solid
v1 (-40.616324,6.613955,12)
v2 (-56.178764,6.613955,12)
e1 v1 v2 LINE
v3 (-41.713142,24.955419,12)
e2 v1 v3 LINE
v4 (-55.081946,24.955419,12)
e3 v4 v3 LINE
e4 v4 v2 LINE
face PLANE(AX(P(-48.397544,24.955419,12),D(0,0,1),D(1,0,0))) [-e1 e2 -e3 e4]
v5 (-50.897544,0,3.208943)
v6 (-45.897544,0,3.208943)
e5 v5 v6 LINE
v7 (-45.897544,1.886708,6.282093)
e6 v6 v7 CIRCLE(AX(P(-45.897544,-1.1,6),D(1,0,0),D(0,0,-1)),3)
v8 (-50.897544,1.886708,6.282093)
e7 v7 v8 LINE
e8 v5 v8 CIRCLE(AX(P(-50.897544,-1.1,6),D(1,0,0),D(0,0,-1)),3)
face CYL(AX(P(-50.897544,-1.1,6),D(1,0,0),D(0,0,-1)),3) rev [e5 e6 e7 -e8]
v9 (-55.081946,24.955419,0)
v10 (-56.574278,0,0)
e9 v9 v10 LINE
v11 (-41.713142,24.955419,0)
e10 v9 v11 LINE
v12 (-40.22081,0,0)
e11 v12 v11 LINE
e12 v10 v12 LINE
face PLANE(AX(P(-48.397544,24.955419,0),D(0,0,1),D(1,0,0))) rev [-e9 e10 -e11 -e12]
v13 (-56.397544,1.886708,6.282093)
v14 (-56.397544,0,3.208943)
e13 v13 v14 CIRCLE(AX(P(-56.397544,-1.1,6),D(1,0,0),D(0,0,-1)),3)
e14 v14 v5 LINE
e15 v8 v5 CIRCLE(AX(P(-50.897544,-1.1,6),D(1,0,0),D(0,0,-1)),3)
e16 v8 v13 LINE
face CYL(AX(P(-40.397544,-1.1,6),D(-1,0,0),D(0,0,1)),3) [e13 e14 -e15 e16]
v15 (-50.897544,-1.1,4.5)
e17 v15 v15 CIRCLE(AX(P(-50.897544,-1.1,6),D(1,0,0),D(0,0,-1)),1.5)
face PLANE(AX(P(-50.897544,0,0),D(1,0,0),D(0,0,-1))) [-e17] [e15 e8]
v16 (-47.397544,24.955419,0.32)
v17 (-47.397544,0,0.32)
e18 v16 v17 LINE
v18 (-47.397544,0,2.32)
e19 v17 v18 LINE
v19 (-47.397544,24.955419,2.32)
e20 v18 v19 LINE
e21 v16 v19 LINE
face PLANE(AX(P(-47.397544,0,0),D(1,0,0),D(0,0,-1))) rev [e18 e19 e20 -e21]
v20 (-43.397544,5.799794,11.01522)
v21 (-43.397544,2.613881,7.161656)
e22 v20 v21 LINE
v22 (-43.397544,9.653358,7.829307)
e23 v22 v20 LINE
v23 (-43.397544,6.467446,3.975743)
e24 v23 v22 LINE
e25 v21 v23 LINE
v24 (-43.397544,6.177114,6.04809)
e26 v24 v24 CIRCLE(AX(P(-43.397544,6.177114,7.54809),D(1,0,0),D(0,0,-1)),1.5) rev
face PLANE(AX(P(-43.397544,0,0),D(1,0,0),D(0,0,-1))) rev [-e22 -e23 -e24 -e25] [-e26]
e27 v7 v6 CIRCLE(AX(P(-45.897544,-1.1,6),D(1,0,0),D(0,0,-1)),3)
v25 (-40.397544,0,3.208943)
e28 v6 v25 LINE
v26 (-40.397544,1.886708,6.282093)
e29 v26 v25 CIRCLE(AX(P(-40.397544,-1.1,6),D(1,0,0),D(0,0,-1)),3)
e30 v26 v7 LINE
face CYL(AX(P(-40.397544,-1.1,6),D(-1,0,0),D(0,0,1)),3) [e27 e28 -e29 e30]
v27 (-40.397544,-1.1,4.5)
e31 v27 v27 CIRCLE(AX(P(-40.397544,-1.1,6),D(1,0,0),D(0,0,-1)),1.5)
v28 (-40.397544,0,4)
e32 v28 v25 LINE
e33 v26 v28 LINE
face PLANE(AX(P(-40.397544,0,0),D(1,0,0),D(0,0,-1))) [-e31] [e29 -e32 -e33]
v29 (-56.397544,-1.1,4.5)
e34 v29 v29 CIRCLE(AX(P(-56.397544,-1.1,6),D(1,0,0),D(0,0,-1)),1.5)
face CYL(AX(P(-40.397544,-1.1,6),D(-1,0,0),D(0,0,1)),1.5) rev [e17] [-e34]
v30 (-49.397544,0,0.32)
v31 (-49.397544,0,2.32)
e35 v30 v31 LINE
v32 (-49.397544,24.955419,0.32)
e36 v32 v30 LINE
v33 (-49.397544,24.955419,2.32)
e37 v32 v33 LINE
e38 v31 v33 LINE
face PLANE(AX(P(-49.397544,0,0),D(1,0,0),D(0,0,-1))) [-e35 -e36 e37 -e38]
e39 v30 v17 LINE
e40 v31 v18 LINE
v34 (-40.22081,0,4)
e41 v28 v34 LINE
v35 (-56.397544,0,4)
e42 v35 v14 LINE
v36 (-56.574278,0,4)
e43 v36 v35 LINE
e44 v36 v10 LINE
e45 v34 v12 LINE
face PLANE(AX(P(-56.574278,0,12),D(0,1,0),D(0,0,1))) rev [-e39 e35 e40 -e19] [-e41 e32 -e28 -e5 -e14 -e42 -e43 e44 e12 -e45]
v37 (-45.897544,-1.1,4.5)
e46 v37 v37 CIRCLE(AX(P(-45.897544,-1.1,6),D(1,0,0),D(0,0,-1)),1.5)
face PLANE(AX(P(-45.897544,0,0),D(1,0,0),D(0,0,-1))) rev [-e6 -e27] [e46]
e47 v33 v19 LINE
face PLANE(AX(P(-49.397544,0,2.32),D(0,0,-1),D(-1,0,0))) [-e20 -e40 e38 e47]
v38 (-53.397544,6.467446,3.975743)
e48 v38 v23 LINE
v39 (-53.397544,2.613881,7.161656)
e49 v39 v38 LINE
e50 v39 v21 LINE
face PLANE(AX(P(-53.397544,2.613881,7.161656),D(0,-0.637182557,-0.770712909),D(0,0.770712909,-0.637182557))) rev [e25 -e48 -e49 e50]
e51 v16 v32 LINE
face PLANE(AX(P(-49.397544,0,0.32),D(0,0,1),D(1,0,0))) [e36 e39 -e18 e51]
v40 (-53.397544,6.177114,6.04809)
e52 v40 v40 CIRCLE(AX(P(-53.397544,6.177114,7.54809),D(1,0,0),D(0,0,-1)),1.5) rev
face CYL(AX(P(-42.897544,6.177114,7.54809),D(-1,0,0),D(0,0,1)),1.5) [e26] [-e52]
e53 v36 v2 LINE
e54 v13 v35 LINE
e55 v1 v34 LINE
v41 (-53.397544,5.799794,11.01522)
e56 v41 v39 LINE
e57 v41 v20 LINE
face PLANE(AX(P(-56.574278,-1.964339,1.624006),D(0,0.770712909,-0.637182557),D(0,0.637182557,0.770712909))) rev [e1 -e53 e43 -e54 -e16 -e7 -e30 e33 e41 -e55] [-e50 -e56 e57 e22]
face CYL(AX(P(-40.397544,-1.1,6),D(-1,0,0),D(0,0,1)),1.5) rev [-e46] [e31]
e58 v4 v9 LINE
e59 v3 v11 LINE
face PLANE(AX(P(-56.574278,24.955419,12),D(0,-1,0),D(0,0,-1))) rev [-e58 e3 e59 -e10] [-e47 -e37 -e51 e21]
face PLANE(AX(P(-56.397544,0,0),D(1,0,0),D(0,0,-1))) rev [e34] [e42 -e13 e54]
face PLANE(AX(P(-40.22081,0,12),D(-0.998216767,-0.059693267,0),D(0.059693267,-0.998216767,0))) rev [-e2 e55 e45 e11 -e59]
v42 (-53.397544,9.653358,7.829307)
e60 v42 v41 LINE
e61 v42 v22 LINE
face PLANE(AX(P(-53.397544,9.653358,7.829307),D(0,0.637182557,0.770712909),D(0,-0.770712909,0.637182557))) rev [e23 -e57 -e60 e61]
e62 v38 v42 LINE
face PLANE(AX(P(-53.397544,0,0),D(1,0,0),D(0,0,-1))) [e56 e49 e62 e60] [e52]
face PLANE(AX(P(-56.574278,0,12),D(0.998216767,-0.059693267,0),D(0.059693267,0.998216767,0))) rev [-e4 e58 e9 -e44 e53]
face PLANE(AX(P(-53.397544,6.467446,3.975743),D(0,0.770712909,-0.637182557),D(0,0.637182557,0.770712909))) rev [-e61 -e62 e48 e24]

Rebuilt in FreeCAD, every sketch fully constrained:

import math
import FreeCAD as App
import Part
import Sketcher
from FreeCAD import Vector
Q = App.Units.Quantity

doc = App.newDocument("Part")
body = doc.addObject("PartDesign::Body", "Body")

# Sketch on XY plane
sketch1 = doc.addObject("Sketcher::SketchObject", "Sketch")
body.addObject(sketch1)
sketch1.AttachmentSupport = (doc.XY_Plane, [""])
sketch1.MapMode = "FlatFace"
sketch1.addGeometry(Part.LineSegment(Vector(-57, 0, 0), Vector(-40, 0, 0)), False)
sketch1.addGeometry(Part.LineSegment(Vector(-40, 0, 0), Vector(-42, 25, 0)), False)
sketch1.addGeometry(Part.ArcOfCircle(Part.Circle(Vector(-48, 25, 0), Vector(0, 0, 1), 7), math.radians(0), math.radians(180)), False)
sketch1.addGeometry(Part.LineSegment(Vector(-55, 25, 0), Vector(-57, 0, 0)), False)
sketch1.addConstraint(Sketcher.Constraint("Coincident", 0, 2, 1, 1))
sketch1.addConstraint(Sketcher.Constraint("Coincident", 1, 2, 2, 1))
sketch1.addConstraint(Sketcher.Constraint("Coincident", 2, 2, 3, 1))
sketch1.addConstraint(Sketcher.Constraint("Coincident", 3, 2, 0, 1))
sketch1.addConstraint(Sketcher.Constraint("Horizontal", 0))
sketch1.addConstraint(Sketcher.Constraint("PointOnObject", 0, 2, -1))
sketch1.addConstraint(Sketcher.Constraint("Horizontal", 2, 3, 1, 2))
sketch1.addConstraint(Sketcher.Constraint("Horizontal", 1, 2, 2, 2))
sketch1.addConstraint(Sketcher.Constraint("Equal", 1, 3))
sketch1.addConstraint(Sketcher.Constraint("Distance", 1, Q("25 mm")))
sketch1.addConstraint(Sketcher.Constraint("Radius", 2, Q("6.684402 mm")))
sketch1.addConstraint(Sketcher.Constraint("DistanceX", 0, 1, 0, 2, Q("16.353468 mm")))
sketch1.addConstraint(Sketcher.Constraint("DistanceX", 0, 2, -1, 1, Q("40.22081 mm")))
pad1 = doc.addObject("PartDesign::Pad", "Pad")
body.addObject(pad1)
pad1.Profile = sketch1
pad1.Length = 12

# Sketch on YZ plane
sketch2 = doc.addObject("Sketcher::SketchObject", "Sketch001")
body.addObject(sketch2)
sketch2.AttachmentSupport = (doc.YZ_Plane, [""])
sketch2.MapMode = "FlatFace"
sketch2.AttachmentOffset = App.Placement(Vector(0, 0, -48.397544), App.Rotation())
sketch2.addGeometry(Part.LineSegment(Vector(7, 12, 0), Vector(0, 12, 0)), False)
sketch2.addGeometry(Part.LineSegment(Vector(0, 12, 0), Vector(0, 4, 0)), False)
sketch2.addGeometry(Part.LineSegment(Vector(0, 4, 0), Vector(7, 12, 0)), False)
sketch2.addConstraint(Sketcher.Constraint("Coincident", 0, 2, 1, 1))
sketch2.addConstraint(Sketcher.Constraint("Coincident", 1, 2, 2, 1))
sketch2.addConstraint(Sketcher.Constraint("Coincident", 2, 2, 0, 1))
sketch2.addConstraint(Sketcher.Constraint("Horizontal", 0))
sketch2.addConstraint(Sketcher.Constraint("Vertical", 1))
sketch2.addConstraint(Sketcher.Constraint("PointOnObject", 0, 2, -2))
sketch2.addConstraint(Sketcher.Constraint("DistanceY", 1, 2, 1, 1, Q("8 mm")))
sketch2.addConstraint(Sketcher.Constraint("DistanceY", -1, 1, 0, 2, Q("12 mm")))
sketch2.addConstraint(Sketcher.Constraint("Distance", 2, Q("10.38 mm")))
pocket1 = doc.addObject("PartDesign::Pocket", "Pocket")
body.addObject(pocket1)
pocket1.Profile = sketch2
pocket1.Type = "ThroughAll"
pocket1.Midplane = True

# Sketch on YZ plane
sketch3 = doc.addObject("Sketcher::SketchObject", "Sketch002")
body.addObject(sketch3)
sketch3.AttachmentSupport = (doc.YZ_Plane, [""])
sketch3.MapMode = "FlatFace"
sketch3.AttachmentOffset = App.Placement(Vector(0, 0, -48.397544), App.Rotation())
sketch3.addGeometry(Part.Circle(Vector(-1.1, 6, 0), Vector(0, 0, 1), 3), False)
sketch3.addGeometry(Part.Circle(Vector(-1.1, 6, 0), Vector(0, 0, 1), 1.5), False)
sketch3.addConstraint(Sketcher.Constraint("Coincident", 1, 3, 0, 3))
sketch3.addConstraint(Sketcher.Constraint("Diameter", 0, Q("6 mm")))
sketch3.addConstraint(Sketcher.Constraint("Diameter", 1, Q("3 mm")))
sketch3.addConstraint(Sketcher.Constraint("DistanceY", -1, 1, 0, 3, Q("6 mm")))
sketch3.addConstraint(Sketcher.Constraint("DistanceX", 0, 3, -1, 1, Q("1.1 mm")))
pad2 = doc.addObject("PartDesign::Pad", "Pad001")
body.addObject(pad2)
pad2.Profile = sketch3
pad2.Length = 16
pad2.Midplane = True

# Sketch on YZ plane
sketch4 = doc.addObject("Sketcher::SketchObject", "Sketch003")
body.addObject(sketch4)
sketch4.AttachmentSupport = (doc.YZ_Plane, [""])
sketch4.MapMode = "FlatFace"
sketch4.AttachmentOffset = App.Placement(Vector(0, 0, -48.397544), App.Rotation())
sketch4.addGeometry(Part.Circle(Vector(-1.1, 6, 0), Vector(0, 0, 1), 3), False)
sketch4.addGeometry(Part.Circle(Vector(-1.1, 6, 0), Vector(0, 0, 1), 1.5), False)
sketch4.addConstraint(Sketcher.Constraint("Coincident", 1, 3, 0, 3))
sketch4.addConstraint(Sketcher.Constraint("Diameter", 0, Q("6 mm")))
sketch4.addConstraint(Sketcher.Constraint("Diameter", 1, Q("3 mm")))
sketch4.addConstraint(Sketcher.Constraint("DistanceY", -1, 1, 0, 3, Q("6 mm")))
sketch4.addConstraint(Sketcher.Constraint("DistanceX", 0, 3, -1, 1, Q("1.1 mm")))
pocket2 = doc.addObject("PartDesign::Pocket", "Pocket001")
body.addObject(pocket2)
pocket2.Profile = sketch4
pocket2.Length = 5
pocket2.Midplane = True

# Sketch on YZ plane
sketch5 = doc.addObject("Sketcher::SketchObject", "Sketch004")
body.addObject(sketch5)
sketch5.AttachmentSupport = (doc.YZ_Plane, [""])
sketch5.MapMode = "FlatFace"
sketch5.AttachmentOffset = App.Placement(Vector(0, 0, -48.397544), App.Rotation())
sketch5.addGeometry(Part.LineSegment(Vector(5.8, 11, 0), Vector(2.6, 7.2, 0)), False)
sketch5.addGeometry(Part.LineSegment(Vector(2.6, 7.2, 0), Vector(6.5, 4, 0)), False)
sketch5.addGeometry(Part.LineSegment(Vector(6.5, 4, 0), Vector(9.7, 7.8, 0)), False)
sketch5.addGeometry(Part.LineSegment(Vector(9.7, 7.8, 0), Vector(5.8, 11, 0)), False)
sketch5.addConstraint(Sketcher.Constraint("Coincident", 0, 2, 1, 1))
sketch5.addConstraint(Sketcher.Constraint("Coincident", 1, 2, 2, 1))
sketch5.addConstraint(Sketcher.Constraint("Coincident", 2, 2, 3, 1))
sketch5.addConstraint(Sketcher.Constraint("Coincident", 3, 2, 0, 1))
sketch5.addConstraint(Sketcher.Constraint("Perpendicular", 0, 1))
sketch5.addConstraint(Sketcher.Constraint("Perpendicular", 1, 2))
sketch5.addConstraint(Sketcher.Constraint("Perpendicular", 2, 3))
sketch5.addConstraint(Sketcher.Constraint("Equal", 0, 1))
sketch5.addConstraint(Sketcher.Constraint("Distance", 0, Q("5 mm")))
sketch5.addConstraint(Sketcher.Constraint("DistanceX", -1, 1, 0, 2, Q("2.613881 mm")))
sketch5.addConstraint(Sketcher.Constraint("DistanceX", -1, 1, 2, 2, Q("9.653358 mm")))
sketch5.addConstraint(Sketcher.Constraint("DistanceY", -1, 1, 3, 2, Q("11.01522 mm")))
pocket3 = doc.addObject("PartDesign::Pocket", "Pocket002")
body.addObject(pocket3)
pocket3.Profile = sketch5
pocket3.Length = 10
pocket3.Midplane = True

# Sketch on YZ plane
sketch6 = doc.addObject("Sketcher::SketchObject", "Sketch005")
body.addObject(sketch6)
sketch6.AttachmentSupport = (doc.YZ_Plane, [""])
sketch6.MapMode = "FlatFace"
sketch6.AttachmentOffset = App.Placement(Vector(0, 0, -48.397544), App.Rotation())
sketch6.addGeometry(Part.Circle(Vector(6.2, 7.5, 0), Vector(0, 0, 1), 1.5), False)
sketch6.addConstraint(Sketcher.Constraint("Diameter", 0, Q("3 mm")))
sketch6.addConstraint(Sketcher.Constraint("DistanceY", -1, 1, 0, 3, Q("7.54809 mm")))
sketch6.addConstraint(Sketcher.Constraint("DistanceX", -1, 1, 0, 3, Q("6.177114 mm")))
pad3 = doc.addObject("PartDesign::Pad", "Pad002")
body.addObject(pad3)
pad3.Profile = sketch6
pad3.Length = 11
pad3.Midplane = True

# Sketch on YZ plane
sketch7 = doc.addObject("Sketcher::SketchObject", "Sketch006")
body.addObject(sketch7)
sketch7.AttachmentSupport = (doc.YZ_Plane, [""])
sketch7.MapMode = "FlatFace"
sketch7.AttachmentOffset = App.Placement(Vector(0, 0, -48.397544), App.Rotation())
sketch7.addGeometry(Part.LineSegment(Vector(32, 12, 0), Vector(25, 12, 0)), False)
sketch7.addGeometry(Part.LineSegment(Vector(25, 12, 0), Vector(25, 0, 0)), False)
sketch7.addGeometry(Part.LineSegment(Vector(25, 0, 0), Vector(32, 0, 0)), False)
sketch7.addGeometry(Part.LineSegment(Vector(32, 0, 0), Vector(32, 12, 0)), False)
sketch7.addConstraint(Sketcher.Constraint("Coincident", 0, 2, 1, 1))
sketch7.addConstraint(Sketcher.Constraint("Coincident", 1, 2, 2, 1))
sketch7.addConstraint(Sketcher.Constraint("Coincident", 2, 2, 3, 1))
sketch7.addConstraint(Sketcher.Constraint("Coincident", 3, 2, 0, 1))
sketch7.addConstraint(Sketcher.Constraint("Horizontal", 0))
sketch7.addConstraint(Sketcher.Constraint("Vertical", 1))
sketch7.addConstraint(Sketcher.Constraint("Horizontal", 2))
sketch7.addConstraint(Sketcher.Constraint("Vertical", 3))
sketch7.addConstraint(Sketcher.Constraint("PointOnObject", 1, 2, -1))
sketch7.addConstraint(Sketcher.Constraint("DistanceY", 1, 2, 1, 1, Q("12 mm")))
sketch7.addConstraint(Sketcher.Constraint("DistanceX", 0, 2, 0, 1, Q("6.684402 mm")))
sketch7.addConstraint(Sketcher.Constraint("DistanceX", -1, 1, 0, 2, Q("24.955419 mm")))
pocket4 = doc.addObject("PartDesign::Pocket", "Pocket003")
body.addObject(pocket4)
pocket4.Profile = sketch7
pocket4.Type = "ThroughAll"
pocket4.Midplane = True

# Sketch on YZ plane
sketch8 = doc.addObject("Sketcher::SketchObject", "Sketch007")
body.addObject(sketch8)
sketch8.AttachmentSupport = (doc.YZ_Plane, [""])
sketch8.MapMode = "FlatFace"
sketch8.AttachmentOffset = App.Placement(Vector(0, 0, -48.397544), App.Rotation())
sketch8.addGeometry(Part.LineSegment(Vector(0, 2.3, 0), Vector(0, 0.3, 0)), False)
sketch8.addGeometry(Part.LineSegment(Vector(0, 0.3, 0), Vector(28.6, 0.3, 0)), False)
sketch8.addGeometry(Part.LineSegment(Vector(28.6, 0.3, 0), Vector(28.6, 2.3, 0)), False)
sketch8.addGeometry(Part.LineSegment(Vector(28.6, 2.3, 0), Vector(0, 2.3, 0)), False)
sketch8.addConstraint(Sketcher.Constraint("Coincident", 0, 2, 1, 1))
sketch8.addConstraint(Sketcher.Constraint("Coincident", 1, 2, 2, 1))
sketch8.addConstraint(Sketcher.Constraint("Coincident", 2, 2, 3, 1))
sketch8.addConstraint(Sketcher.Constraint("Coincident", 3, 2, 0, 1))
sketch8.addConstraint(Sketcher.Constraint("Vertical", 0))
sketch8.addConstraint(Sketcher.Constraint("Horizontal", 1))
sketch8.addConstraint(Sketcher.Constraint("Vertical", 2))
sketch8.addConstraint(Sketcher.Constraint("Horizontal", 3))
sketch8.addConstraint(Sketcher.Constraint("PointOnObject", 0, 2, -2))
sketch8.addConstraint(Sketcher.Constraint("DistanceY", 0, 2, 0, 1, Q("2 mm")))
sketch8.addConstraint(Sketcher.Constraint("DistanceY", -1, 1, 0, 2, Q("0.32 mm")))
sketch8.addConstraint(Sketcher.Constraint("DistanceX", 1, 1, 1, 2, Q("28.550385 mm")))
pocket5 = doc.addObject("PartDesign::Pocket", "Pocket004")
body.addObject(pocket5)
pocket5.Profile = sketch8
pocket5.Length = 2
pocket5.Midplane = True

doc.recompute()
